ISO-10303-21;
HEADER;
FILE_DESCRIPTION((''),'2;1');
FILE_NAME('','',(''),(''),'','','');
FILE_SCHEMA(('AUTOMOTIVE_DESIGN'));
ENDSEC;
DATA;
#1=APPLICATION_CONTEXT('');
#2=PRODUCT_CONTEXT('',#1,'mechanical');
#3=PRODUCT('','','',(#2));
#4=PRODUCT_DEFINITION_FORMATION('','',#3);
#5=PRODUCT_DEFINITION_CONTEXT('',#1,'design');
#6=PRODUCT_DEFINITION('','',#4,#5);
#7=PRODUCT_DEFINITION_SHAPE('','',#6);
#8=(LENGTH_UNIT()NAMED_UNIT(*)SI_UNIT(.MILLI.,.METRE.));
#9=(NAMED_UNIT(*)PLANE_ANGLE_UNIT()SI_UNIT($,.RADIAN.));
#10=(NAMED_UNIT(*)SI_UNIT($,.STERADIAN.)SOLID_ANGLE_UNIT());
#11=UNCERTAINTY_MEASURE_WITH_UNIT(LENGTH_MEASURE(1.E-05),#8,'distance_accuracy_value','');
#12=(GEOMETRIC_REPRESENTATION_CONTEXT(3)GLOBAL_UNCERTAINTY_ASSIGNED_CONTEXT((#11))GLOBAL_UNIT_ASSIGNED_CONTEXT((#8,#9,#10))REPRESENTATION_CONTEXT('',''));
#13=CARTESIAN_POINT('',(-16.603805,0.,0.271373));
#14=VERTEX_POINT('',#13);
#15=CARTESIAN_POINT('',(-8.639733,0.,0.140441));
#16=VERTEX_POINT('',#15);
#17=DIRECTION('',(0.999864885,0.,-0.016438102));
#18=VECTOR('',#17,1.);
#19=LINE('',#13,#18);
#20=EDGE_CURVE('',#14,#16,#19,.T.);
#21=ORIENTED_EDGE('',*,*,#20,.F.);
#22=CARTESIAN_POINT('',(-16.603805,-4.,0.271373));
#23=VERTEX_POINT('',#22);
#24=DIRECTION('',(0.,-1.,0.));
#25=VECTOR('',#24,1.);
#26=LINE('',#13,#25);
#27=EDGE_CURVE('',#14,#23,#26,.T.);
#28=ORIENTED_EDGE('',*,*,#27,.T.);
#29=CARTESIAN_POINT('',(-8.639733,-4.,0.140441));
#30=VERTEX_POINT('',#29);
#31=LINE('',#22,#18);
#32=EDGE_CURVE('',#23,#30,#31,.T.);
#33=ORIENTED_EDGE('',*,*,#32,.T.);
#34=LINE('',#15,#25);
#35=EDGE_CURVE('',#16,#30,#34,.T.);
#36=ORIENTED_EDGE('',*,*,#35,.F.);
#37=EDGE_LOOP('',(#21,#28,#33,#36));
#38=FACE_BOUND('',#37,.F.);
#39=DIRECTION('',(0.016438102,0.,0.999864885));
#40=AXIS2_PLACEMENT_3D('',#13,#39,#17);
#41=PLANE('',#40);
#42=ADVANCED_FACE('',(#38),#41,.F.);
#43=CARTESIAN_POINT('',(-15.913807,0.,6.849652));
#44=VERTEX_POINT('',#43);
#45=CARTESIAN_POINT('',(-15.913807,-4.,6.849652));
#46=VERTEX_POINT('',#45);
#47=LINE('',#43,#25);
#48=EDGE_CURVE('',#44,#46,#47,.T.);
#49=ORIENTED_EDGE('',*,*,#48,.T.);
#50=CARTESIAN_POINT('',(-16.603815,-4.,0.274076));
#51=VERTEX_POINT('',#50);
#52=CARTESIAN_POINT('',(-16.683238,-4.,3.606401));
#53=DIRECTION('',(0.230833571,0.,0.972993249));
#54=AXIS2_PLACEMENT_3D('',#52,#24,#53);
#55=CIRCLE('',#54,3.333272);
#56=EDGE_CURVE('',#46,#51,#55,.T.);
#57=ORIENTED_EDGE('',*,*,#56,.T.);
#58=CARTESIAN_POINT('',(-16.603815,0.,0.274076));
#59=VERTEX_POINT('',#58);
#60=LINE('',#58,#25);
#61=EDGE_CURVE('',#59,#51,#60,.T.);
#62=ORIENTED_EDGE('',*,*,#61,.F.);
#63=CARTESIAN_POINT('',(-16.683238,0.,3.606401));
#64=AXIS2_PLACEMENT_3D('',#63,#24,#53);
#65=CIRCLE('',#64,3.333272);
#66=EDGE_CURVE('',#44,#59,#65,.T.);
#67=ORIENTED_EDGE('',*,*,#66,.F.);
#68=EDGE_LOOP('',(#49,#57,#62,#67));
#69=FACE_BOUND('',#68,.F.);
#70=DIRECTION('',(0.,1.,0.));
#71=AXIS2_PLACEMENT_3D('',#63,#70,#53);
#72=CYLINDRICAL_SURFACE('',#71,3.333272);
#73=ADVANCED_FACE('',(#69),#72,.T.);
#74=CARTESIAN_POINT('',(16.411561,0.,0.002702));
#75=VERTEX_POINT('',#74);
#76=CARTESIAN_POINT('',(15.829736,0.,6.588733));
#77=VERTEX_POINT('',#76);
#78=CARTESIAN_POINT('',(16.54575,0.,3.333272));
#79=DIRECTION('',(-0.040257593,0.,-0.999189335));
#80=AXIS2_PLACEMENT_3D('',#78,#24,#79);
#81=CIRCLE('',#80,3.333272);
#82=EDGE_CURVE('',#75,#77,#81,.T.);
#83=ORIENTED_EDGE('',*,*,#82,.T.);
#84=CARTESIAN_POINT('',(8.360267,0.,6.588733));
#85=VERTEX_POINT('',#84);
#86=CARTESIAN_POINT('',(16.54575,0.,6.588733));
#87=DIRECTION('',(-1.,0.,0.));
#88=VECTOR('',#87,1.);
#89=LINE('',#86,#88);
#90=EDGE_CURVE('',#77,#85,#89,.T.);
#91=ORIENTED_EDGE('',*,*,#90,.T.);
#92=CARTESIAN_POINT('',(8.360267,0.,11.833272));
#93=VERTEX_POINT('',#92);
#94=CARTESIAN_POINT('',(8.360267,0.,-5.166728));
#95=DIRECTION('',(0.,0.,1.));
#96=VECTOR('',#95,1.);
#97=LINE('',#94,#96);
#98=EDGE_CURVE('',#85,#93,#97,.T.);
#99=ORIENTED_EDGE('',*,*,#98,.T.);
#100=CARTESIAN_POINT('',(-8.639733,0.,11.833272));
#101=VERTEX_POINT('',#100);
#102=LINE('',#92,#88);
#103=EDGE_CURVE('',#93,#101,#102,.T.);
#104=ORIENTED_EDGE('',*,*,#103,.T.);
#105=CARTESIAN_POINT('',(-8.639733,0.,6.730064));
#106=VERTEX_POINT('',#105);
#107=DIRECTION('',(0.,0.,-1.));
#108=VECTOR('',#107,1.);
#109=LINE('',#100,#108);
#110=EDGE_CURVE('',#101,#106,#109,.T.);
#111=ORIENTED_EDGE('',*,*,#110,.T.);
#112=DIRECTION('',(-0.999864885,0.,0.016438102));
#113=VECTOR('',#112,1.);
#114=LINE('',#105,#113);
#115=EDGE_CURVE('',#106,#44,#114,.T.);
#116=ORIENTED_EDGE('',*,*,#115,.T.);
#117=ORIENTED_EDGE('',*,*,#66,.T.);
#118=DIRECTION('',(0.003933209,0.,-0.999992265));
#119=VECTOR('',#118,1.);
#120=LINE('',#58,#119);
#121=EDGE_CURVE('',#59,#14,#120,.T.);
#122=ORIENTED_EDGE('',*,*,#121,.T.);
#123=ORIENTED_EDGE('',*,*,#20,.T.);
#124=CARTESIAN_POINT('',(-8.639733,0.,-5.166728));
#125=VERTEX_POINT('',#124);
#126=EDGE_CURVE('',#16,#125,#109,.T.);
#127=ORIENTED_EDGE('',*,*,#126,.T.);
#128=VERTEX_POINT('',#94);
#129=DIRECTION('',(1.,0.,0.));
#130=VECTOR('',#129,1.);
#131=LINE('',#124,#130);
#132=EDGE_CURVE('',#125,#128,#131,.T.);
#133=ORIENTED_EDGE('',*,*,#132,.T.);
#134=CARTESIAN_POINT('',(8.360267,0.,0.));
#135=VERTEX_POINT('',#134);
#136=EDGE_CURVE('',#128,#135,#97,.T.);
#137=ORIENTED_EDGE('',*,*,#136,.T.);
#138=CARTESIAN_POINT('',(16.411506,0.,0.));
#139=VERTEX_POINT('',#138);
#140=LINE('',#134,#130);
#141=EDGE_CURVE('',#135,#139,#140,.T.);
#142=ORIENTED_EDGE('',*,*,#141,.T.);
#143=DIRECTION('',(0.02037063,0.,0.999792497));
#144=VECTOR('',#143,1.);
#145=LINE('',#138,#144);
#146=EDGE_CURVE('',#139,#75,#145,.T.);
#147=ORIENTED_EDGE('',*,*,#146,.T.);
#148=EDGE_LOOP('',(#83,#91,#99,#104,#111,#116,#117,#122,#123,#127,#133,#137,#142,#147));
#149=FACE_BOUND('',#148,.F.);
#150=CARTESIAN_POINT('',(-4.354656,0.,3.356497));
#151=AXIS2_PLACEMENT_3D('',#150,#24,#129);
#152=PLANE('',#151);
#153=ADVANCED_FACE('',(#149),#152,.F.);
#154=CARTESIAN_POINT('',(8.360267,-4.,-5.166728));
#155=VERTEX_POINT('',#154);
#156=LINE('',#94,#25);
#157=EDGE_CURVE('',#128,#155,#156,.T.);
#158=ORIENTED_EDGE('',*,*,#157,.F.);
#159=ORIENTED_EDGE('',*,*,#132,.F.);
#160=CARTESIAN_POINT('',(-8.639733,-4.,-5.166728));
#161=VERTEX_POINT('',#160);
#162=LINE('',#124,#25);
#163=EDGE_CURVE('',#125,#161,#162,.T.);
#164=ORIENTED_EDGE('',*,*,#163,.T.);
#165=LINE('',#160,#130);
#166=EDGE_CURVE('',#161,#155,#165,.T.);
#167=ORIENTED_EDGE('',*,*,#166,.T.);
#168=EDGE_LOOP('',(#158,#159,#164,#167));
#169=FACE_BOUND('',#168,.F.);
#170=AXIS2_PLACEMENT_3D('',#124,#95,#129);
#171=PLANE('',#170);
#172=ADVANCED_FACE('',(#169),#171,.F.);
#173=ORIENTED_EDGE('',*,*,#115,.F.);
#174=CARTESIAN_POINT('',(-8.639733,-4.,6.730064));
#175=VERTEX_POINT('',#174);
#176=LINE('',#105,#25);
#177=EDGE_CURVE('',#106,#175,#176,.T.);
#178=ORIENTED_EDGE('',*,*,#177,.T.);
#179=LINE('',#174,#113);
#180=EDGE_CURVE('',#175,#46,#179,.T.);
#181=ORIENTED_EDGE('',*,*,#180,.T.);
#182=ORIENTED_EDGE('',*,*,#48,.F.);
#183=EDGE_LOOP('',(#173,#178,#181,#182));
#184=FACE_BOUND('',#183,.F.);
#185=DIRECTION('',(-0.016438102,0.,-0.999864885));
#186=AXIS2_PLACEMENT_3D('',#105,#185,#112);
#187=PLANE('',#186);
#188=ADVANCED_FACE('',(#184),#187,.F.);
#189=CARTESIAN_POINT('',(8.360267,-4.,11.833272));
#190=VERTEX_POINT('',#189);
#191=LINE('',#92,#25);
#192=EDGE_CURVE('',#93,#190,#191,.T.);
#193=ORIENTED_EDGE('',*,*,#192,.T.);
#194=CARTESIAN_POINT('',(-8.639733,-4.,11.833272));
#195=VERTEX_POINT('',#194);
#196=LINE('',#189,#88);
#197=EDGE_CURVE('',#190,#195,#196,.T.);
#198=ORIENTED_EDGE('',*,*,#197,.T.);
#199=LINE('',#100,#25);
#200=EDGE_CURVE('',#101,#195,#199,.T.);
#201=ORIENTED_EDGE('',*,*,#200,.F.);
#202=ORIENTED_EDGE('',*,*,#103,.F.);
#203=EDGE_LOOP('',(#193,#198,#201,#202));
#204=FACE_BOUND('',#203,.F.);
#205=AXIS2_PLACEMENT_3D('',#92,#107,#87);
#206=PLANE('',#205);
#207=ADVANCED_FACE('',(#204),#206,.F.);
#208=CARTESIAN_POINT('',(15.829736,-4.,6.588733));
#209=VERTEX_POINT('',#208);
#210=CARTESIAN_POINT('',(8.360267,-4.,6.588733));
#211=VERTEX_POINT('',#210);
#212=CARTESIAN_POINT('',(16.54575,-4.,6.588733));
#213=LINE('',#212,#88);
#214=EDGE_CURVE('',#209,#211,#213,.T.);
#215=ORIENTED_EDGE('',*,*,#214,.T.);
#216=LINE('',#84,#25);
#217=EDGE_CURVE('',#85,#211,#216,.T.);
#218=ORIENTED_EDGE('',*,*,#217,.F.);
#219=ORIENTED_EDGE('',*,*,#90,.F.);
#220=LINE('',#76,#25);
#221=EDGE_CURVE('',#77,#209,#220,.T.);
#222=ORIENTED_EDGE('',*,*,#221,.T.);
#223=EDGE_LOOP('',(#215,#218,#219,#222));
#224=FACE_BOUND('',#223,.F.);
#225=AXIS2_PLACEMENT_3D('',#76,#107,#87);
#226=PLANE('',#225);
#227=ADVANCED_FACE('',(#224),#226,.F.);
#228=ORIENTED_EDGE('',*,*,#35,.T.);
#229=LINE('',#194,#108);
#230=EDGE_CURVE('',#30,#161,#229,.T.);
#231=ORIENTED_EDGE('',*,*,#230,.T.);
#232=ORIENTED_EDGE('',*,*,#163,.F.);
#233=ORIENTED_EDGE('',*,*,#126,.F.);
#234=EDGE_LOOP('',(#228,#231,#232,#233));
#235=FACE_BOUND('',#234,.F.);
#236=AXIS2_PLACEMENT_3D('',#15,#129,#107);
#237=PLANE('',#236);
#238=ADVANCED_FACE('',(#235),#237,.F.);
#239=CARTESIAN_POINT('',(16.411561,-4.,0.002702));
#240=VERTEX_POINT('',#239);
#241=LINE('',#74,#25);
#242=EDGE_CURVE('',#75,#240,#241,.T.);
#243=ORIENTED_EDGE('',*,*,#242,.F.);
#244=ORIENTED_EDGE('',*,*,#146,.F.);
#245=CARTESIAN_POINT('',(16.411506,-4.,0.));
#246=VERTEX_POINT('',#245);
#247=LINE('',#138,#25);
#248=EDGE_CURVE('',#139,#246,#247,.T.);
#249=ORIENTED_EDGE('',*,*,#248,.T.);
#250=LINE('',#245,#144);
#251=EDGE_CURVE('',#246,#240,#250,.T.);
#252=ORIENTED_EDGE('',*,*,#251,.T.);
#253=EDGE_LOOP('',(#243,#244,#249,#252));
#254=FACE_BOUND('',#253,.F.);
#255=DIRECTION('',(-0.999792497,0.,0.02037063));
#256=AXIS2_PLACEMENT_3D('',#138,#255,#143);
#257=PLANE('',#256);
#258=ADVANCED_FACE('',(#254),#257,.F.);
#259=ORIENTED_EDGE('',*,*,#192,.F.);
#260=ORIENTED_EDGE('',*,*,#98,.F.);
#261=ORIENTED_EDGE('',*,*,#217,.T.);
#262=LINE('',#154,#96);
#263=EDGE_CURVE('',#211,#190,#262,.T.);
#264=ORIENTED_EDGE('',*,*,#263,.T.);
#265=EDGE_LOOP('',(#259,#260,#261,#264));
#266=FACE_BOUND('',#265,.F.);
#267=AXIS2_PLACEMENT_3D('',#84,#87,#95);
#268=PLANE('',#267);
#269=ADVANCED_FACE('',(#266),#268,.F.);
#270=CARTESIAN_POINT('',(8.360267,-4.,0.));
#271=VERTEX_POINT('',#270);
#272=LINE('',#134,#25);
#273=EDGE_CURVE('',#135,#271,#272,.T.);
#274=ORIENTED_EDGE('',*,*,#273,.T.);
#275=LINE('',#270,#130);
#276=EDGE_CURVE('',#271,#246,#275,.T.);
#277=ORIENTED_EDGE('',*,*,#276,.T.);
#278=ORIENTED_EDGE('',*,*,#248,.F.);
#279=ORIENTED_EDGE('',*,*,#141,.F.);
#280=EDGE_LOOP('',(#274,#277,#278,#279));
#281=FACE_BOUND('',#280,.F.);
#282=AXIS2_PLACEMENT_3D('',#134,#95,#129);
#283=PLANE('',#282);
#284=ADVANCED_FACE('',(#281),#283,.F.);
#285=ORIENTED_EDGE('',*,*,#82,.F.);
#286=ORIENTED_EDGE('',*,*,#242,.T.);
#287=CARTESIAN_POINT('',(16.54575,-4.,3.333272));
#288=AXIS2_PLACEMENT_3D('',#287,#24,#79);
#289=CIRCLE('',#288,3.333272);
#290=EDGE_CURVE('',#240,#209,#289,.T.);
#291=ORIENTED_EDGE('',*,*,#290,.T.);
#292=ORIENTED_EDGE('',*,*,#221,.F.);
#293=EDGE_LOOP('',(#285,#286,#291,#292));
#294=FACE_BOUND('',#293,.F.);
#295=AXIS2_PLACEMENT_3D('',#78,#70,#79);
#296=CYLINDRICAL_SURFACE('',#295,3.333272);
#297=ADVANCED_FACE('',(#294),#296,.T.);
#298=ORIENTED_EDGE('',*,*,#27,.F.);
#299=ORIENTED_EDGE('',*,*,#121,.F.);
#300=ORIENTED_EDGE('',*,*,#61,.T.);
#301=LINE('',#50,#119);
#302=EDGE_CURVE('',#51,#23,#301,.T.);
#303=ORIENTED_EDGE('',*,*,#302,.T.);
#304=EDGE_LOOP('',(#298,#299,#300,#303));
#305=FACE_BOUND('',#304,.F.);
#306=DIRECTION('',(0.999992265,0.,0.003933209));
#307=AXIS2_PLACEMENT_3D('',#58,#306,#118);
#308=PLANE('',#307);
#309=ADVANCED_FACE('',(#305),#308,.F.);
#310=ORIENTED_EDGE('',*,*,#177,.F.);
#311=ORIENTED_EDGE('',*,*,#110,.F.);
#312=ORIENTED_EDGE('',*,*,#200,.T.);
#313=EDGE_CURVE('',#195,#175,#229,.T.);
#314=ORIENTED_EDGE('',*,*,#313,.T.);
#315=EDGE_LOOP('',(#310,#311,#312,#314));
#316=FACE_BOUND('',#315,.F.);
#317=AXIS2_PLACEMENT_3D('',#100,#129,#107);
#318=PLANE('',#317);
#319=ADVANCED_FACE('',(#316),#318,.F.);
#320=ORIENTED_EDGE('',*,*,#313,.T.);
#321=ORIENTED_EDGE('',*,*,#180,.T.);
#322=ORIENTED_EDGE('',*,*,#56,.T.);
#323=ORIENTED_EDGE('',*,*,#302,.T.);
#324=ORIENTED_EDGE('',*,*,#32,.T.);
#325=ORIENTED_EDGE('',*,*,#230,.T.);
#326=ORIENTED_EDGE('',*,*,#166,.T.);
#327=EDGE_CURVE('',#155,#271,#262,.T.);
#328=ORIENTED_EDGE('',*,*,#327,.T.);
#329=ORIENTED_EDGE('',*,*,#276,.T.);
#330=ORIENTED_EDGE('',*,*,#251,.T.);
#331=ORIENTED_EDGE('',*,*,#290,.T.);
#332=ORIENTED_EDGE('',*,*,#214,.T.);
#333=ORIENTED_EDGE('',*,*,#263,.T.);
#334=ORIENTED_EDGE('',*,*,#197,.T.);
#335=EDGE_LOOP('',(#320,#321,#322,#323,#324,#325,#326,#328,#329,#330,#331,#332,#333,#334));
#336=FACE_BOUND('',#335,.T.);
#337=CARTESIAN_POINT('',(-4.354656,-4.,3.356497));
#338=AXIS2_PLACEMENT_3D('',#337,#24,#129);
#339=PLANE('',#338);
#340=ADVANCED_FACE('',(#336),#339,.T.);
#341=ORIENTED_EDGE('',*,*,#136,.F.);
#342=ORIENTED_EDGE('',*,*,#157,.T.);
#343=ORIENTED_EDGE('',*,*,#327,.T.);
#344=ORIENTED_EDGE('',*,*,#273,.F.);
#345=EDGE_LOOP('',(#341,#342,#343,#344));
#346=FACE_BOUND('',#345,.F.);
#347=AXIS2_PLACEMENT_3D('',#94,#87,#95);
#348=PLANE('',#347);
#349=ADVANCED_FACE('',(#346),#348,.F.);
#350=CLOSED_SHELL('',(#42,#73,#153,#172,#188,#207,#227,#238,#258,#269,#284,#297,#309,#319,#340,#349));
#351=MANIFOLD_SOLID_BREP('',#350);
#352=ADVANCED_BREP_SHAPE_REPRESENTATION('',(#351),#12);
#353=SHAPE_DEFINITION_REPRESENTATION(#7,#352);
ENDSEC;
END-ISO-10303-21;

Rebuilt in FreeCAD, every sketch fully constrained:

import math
import FreeCAD as App
import Part
import Sketcher

doc = App.newDocument("Part")
body = doc.addObject("PartDesign::Body", "Body")

sketch1 = doc.addObject("Sketcher::SketchObject", "Sketch")
body.addObject(sketch1)
sketch1.AttachmentSupport = (doc.XZ_Plane, [""])
sketch1.MapMode = "FlatFace"
sketch1.addGeometry(Part.LineSegment(App.Vector(-8.639733, 11.833272, 0), App.Vector(-8.639733, 6.730064, 0)), False)
sketch1.addGeometry(Part.LineSegment(App.Vector(-8.639733, 6.730064, 0), App.Vector(-15.913807, 6.849652, 0)), False)
sketch1.addGeometry(Part.ArcOfCircle(Part.Circle(App.Vector(-16.683238, 3.606401, 0), App.Vector(0, 0, 1), 3.333272), math.radians(76.653847), math.radians(271.365337)), False)
sketch1.addGeometry(Part.LineSegment(App.Vector(-16.603815, 0.274076, 0), App.Vector(-16.603805, 0.271373, 0)), False)
sketch1.addGeometry(Part.LineSegment(App.Vector(-16.603805, 0.271373, 0), App.Vector(-8.639733, 0.140441, 0)), False)
sketch1.addGeometry(Part.LineSegment(App.Vector(-8.639733, 0.140441, 0), App.Vector(-8.639733, -5.166728, 0)), False)
sketch1.addGeometry(Part.LineSegment(App.Vector(-8.639733, -5.166728, 0), App.Vector(8.360267, -5.166728, 0)), False)
sketch1.addGeometry(Part.LineSegment(App.Vector(8.360267, -5.166728, 0), App.Vector(8.360267, 0, 0)), False)
sketch1.addGeometry(Part.LineSegment(App.Vector(8.360267, 0, 0), App.Vector(16.411506, 0, 0)), False)
sketch1.addGeometry(Part.LineSegment(App.Vector(16.411506, 0, 0), App.Vector(16.411561, 0.002702, 0)), False)
sketch1.addGeometry(Part.ArcOfCircle(Part.Circle(App.Vector(16.54575, 3.333272, 0), App.Vector(0, 0, 1), 3.333272), math.radians(-92.307214), math.radians(102.404276)), False)
sketch1.addGeometry(Part.LineSegment(App.Vector(15.829736, 6.588733, 0), App.Vector(8.360267, 6.588733, 0)), False)
sketch1.addGeometry(Part.LineSegment(App.Vector(8.360267, 6.588733, 0), App.Vector(8.360267, 11.833272, 0)), False)
sketch1.addGeometry(Part.LineSegment(App.Vector(8.360267, 11.833272, 0), App.Vector(-8.639733, 11.833272, 0)), False)
sketch1.addConstraint(Sketcher.Constraint("Coincident", 0, 2, 1, 1))
sketch1.addConstraint(Sketcher.Constraint("Coincident", 1, 2, 2, 1))
sketch1.addConstraint(Sketcher.Constraint("Coincident", 2, 2, 3, 1))
sketch1.addConstraint(Sketcher.Constraint("Coincident", 3, 2, 4, 1))
sketch1.addConstraint(Sketcher.Constraint("Coincident", 4, 2, 5, 1))
sketch1.addConstraint(Sketcher.Constraint("Coincident", 5, 2, 6, 1))
sketch1.addConstraint(Sketcher.Constraint("Coincident", 6, 2, 7, 1))
sketch1.addConstraint(Sketcher.Constraint("Coincident", 7, 2, 8, 1))
sketch1.addConstraint(Sketcher.Constraint("Coincident", 8, 2, 9, 1))
sketch1.addConstraint(Sketcher.Constraint("Coincident", 9, 2, 10, 1))
sketch1.addConstraint(Sketcher.Constraint("Coincident", 10, 2, 11, 1))
sketch1.addConstraint(Sketcher.Constraint("Coincident", 11, 2, 12, 1))
sketch1.addConstraint(Sketcher.Constraint("Coincident", 12, 2, 13, 1))
sketch1.addConstraint(Sketcher.Constraint("Coincident", 13, 2, 0, 1))
sketch1.addConstraint(Sketcher.Constraint("Vertical", 0))
sketch1.addConstraint(Sketcher.Constraint("Vertical", 5))
sketch1.addConstraint(Sketcher.Constraint("Horizontal", 6))
sketch1.addConstraint(Sketcher.Constraint("Vertical", 7))
sketch1.addConstraint(Sketcher.Constraint("Horizontal", 8))
sketch1.addConstraint(Sketcher.Constraint("Horizontal", 11))
sketch1.addConstraint(Sketcher.Constraint("Vertical", 12))
sketch1.addConstraint(Sketcher.Constraint("Horizontal", 13))
sketch1.addConstraint(Sketcher.Constraint("Equal", 2, 10))
sketch1.addConstraint(Sketcher.Constraint("PointOnObject", 7, 2, -1))
sketch1.addConstraint(Sketcher.Constraint("Parallel", 1, 4))
sketch1.addConstraint(Sketcher.Constraint("Vertical", 0, 2, 4, 2))
sketch1.addConstraint(Sketcher.Constraint("Vertical", 7, 2, 11, 2))
sketch1.addConstraint(Sketcher.Constraint("Equal", 3, 9))
sketch1.addConstraint(Sketcher.Constraint("DistanceX", 6, 1, 6, 2, 17.0))
sketch1.addConstraint(Sketcher.Constraint("DistanceY", 6, 2, 10, 3, 8.5))
sketch1.addConstraint(Sketcher.Constraint("DistanceY", 10, 3, 12, 2, 8.5))
sketch1.addConstraint(Sketcher.Constraint("Radius", 2, 3.333272))
sketch1.addConstraint(Sketcher.Constraint("DistanceX", 8, 1, 8, 2, 8.051239))
sketch1.addConstraint(Sketcher.Constraint("DistanceX", 11, 2, 11, 1, 7.469469))
sketch1.addConstraint(Sketcher.Constraint("DistanceY", 5, 2, 5, 1, 5.307169))
sketch1.addConstraint(Sketcher.Constraint("DistanceY", 7, 1, 7, 2, 5.166728))
sketch1.addConstraint(Sketcher.Constraint("DistanceY", 12, 1, 12, 2, 5.244539))
sketch1.addConstraint(Sketcher.Constraint("DistanceY", -1, 1, 2, 3, 3.606401))
sketch1.addConstraint(Sketcher.Constraint("DistanceY", 3, 2, 10, 3, 3.061899))
sketch1.addConstraint(Sketcher.Constraint("DistanceY", 0, 2, 0, 1, 5.103208))
sketch1.addConstraint(Sketcher.Constraint("DistanceX", 2, 3, -1, 1, 16.683238))
sketch1.addConstraint(Sketcher.Constraint("DistanceX", -1, 1, 10, 3, 16.54575))
sketch1.addConstraint(Sketcher.Constraint("DistanceX", -1, 1, 9, 2, 16.411561))
sketch1.addConstraint(Sketcher.Constraint("DistanceX", 2, 3, 1, 2, 0.769431))
pad1 = doc.addObject("PartDesign::Pad", "Pad")
body.addObject(pad1)
pad1.Profile = sketch1
pad1.Length = 4

doc.recompute()
